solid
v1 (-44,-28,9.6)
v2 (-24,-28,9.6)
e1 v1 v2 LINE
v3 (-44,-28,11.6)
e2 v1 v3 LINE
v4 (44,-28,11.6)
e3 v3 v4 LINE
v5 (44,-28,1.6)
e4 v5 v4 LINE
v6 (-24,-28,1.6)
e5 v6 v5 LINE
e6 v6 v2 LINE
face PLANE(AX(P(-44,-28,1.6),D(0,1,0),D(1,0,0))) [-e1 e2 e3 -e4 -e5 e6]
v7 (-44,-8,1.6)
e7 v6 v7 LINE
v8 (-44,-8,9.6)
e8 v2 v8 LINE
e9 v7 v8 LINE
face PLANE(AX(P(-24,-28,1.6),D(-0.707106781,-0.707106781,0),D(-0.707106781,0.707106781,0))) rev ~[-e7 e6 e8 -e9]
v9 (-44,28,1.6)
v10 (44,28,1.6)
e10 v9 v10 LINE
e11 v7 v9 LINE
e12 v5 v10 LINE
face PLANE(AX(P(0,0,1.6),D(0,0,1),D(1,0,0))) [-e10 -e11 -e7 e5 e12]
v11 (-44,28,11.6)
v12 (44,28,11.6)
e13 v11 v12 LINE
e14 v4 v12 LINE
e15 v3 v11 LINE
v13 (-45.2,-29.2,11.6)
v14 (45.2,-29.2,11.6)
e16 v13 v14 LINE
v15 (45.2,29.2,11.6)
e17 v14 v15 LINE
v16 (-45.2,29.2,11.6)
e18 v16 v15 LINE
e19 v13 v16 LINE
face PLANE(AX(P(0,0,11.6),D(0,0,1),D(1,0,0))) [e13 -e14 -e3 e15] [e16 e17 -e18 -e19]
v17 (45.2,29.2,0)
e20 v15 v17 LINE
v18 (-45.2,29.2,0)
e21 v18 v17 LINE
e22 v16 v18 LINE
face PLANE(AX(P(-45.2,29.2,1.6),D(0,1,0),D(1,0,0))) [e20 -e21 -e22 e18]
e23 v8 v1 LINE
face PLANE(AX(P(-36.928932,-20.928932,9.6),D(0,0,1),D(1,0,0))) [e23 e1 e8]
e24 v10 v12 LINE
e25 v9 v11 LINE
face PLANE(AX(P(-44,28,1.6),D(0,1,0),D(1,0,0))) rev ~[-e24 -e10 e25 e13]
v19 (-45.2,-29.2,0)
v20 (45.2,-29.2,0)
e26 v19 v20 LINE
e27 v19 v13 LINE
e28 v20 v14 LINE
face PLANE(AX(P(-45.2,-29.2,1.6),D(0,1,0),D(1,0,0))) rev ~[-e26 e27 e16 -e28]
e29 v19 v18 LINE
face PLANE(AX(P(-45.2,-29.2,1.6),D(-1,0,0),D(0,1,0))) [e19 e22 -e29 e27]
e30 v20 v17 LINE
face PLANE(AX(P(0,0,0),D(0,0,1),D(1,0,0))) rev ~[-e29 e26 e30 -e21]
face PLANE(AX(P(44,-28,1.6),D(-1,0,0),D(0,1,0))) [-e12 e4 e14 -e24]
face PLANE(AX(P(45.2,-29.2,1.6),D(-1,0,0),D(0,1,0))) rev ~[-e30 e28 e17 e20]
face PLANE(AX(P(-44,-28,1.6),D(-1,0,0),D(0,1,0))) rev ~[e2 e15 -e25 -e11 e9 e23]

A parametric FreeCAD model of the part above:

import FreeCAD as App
import Part
import Sketcher
from FreeCAD import Vector
Q = App.Units.Quantity


def add_polygon(sketch, points):
    """Adds a closed chain of lines whose ends are joined by coincident constraints."""
    first, n = sketch.GeometryCount, len(points)
    for a, b in zip(points, points[1:] + points[:1]):
        sketch.addGeometry(Part.LineSegment(App.Vector(*a, 0), App.Vector(*b, 0)), False)
    for i in range(n):
        sketch.addConstraint(Sketcher.Constraint("Coincident", first + i, 2, first + (i + 1) % n, 1))

doc = App.newDocument("Part")
body = doc.addObject("PartDesign::Body", "Body")

# Sketch on XY plane
sketch1 = body.newObject("Sketcher::SketchObject", "Sketch")
sketch1.AttachmentSupport = (doc.getObject("XY_Plane"), [""])
sketch1.MapMode = "FlatFace"
add_polygon(sketch1, [(-45, 29), (-45, -29), (45, -29), (45, 29)])  # lines 0-3
sketch1.addConstraint([
    Sketcher.Constraint("Vertical", 0),
    Sketcher.Constraint("Horizontal", 1),
    Sketcher.Constraint("Vertical", 2),
    Sketcher.Constraint("Horizontal", 3),
    Sketcher.Constraint("Symmetric", 0, 2, 2, 2, -1, 1),
    Sketcher.Constraint("DistanceX", 1, 1, 1, 2, Q("90.4 mm")),
    Sketcher.Constraint("DistanceY", 0, 2, 0, 1, Q("58.4 mm")),
])
pad1 = body.newObject("PartDesign::Pad", "Pad")
pad1.Profile = sketch1
pad1.Length = 1.6

# Sketch on XY plane
sketch2 = body.newObject("Sketcher::SketchObject", "Sketch001")
sketch2.AttachmentSupport = (doc.getObject("XY_Plane"), [""])
sketch2.MapMode = "FlatFace"
sketch2.AttachmentOffset = App.Placement(Vector(0, 0, 1.6), App.Rotation())
add_polygon(sketch2, [(-45, 29), (-45, -29), (45, -29), (45, 29)])  # lines 0-3
add_polygon(sketch2, [(44, -28), (-44, -28), (-44, 28), (44, 28)])  # lines 4-7
sketch2.addConstraint([
    Sketcher.Constraint("Vertical", 0),
    Sketcher.Constraint("Horizontal", 1),
    Sketcher.Constraint("Vertical", 2),
    Sketcher.Constraint("Horizontal", 3),
    Sketcher.Constraint("Horizontal", 4),
    Sketcher.Constraint("Vertical", 5),
    Sketcher.Constraint("Horizontal", 6),
    Sketcher.Constraint("Vertical", 7),
    Sketcher.Constraint("Symmetric", 0, 2, 2, 2, -1, 1),
    Sketcher.Constraint("Symmetric", 4, 2, 6, 2, -1, 1),
    Sketcher.Constraint("DistanceX", 4, 2, 4, 1, Q("88 mm")),
    Sketcher.Constraint("DistanceY", 5, 1, 5, 2, Q("56 mm")),
    Sketcher.Constraint("DistanceX", 1, 1, 1, 2, Q("90.4 mm")),
    Sketcher.Constraint("DistanceY", 0, 2, 0, 1, Q("58.4 mm")),
])
pad2 = body.newObject("PartDesign::Pad", "Pad001")
pad2.Profile = sketch2
pad2.Length = 10

# Sketch on XY plane
sketch3 = body.newObject("Sketcher::SketchObject", "Sketch002")
sketch3.AttachmentSupport = (doc.getObject("XY_Plane"), [""])
sketch3.MapMode = "FlatFace"
sketch3.AttachmentOffset = App.Placement(Vector(0, 0, 1.6), App.Rotation())
add_polygon(sketch3, [(-24, -28), (-44, -8), (-44, -28)])  # lines 0-2
sketch3.addConstraint([
    Sketcher.Constraint("Vertical", 1),
    Sketcher.Constraint("Horizontal", 2),
    Sketcher.Constraint("Equal", 2, 1),
    Sketcher.Constraint("DistanceX", 2, 1, 2, 2, Q("20 mm")),
    Sketcher.Constraint("DistanceX", 0, 2, -1, 1, Q("44 mm")),
    Sketcher.Constraint("DistanceY", 0, 2, -1, 1, Q("8 mm")),
])
pad3 = body.newObject("PartDesign::Pad", "Pad002")
pad3.Profile = sketch3
pad3.Length = 8

doc.recompute()
